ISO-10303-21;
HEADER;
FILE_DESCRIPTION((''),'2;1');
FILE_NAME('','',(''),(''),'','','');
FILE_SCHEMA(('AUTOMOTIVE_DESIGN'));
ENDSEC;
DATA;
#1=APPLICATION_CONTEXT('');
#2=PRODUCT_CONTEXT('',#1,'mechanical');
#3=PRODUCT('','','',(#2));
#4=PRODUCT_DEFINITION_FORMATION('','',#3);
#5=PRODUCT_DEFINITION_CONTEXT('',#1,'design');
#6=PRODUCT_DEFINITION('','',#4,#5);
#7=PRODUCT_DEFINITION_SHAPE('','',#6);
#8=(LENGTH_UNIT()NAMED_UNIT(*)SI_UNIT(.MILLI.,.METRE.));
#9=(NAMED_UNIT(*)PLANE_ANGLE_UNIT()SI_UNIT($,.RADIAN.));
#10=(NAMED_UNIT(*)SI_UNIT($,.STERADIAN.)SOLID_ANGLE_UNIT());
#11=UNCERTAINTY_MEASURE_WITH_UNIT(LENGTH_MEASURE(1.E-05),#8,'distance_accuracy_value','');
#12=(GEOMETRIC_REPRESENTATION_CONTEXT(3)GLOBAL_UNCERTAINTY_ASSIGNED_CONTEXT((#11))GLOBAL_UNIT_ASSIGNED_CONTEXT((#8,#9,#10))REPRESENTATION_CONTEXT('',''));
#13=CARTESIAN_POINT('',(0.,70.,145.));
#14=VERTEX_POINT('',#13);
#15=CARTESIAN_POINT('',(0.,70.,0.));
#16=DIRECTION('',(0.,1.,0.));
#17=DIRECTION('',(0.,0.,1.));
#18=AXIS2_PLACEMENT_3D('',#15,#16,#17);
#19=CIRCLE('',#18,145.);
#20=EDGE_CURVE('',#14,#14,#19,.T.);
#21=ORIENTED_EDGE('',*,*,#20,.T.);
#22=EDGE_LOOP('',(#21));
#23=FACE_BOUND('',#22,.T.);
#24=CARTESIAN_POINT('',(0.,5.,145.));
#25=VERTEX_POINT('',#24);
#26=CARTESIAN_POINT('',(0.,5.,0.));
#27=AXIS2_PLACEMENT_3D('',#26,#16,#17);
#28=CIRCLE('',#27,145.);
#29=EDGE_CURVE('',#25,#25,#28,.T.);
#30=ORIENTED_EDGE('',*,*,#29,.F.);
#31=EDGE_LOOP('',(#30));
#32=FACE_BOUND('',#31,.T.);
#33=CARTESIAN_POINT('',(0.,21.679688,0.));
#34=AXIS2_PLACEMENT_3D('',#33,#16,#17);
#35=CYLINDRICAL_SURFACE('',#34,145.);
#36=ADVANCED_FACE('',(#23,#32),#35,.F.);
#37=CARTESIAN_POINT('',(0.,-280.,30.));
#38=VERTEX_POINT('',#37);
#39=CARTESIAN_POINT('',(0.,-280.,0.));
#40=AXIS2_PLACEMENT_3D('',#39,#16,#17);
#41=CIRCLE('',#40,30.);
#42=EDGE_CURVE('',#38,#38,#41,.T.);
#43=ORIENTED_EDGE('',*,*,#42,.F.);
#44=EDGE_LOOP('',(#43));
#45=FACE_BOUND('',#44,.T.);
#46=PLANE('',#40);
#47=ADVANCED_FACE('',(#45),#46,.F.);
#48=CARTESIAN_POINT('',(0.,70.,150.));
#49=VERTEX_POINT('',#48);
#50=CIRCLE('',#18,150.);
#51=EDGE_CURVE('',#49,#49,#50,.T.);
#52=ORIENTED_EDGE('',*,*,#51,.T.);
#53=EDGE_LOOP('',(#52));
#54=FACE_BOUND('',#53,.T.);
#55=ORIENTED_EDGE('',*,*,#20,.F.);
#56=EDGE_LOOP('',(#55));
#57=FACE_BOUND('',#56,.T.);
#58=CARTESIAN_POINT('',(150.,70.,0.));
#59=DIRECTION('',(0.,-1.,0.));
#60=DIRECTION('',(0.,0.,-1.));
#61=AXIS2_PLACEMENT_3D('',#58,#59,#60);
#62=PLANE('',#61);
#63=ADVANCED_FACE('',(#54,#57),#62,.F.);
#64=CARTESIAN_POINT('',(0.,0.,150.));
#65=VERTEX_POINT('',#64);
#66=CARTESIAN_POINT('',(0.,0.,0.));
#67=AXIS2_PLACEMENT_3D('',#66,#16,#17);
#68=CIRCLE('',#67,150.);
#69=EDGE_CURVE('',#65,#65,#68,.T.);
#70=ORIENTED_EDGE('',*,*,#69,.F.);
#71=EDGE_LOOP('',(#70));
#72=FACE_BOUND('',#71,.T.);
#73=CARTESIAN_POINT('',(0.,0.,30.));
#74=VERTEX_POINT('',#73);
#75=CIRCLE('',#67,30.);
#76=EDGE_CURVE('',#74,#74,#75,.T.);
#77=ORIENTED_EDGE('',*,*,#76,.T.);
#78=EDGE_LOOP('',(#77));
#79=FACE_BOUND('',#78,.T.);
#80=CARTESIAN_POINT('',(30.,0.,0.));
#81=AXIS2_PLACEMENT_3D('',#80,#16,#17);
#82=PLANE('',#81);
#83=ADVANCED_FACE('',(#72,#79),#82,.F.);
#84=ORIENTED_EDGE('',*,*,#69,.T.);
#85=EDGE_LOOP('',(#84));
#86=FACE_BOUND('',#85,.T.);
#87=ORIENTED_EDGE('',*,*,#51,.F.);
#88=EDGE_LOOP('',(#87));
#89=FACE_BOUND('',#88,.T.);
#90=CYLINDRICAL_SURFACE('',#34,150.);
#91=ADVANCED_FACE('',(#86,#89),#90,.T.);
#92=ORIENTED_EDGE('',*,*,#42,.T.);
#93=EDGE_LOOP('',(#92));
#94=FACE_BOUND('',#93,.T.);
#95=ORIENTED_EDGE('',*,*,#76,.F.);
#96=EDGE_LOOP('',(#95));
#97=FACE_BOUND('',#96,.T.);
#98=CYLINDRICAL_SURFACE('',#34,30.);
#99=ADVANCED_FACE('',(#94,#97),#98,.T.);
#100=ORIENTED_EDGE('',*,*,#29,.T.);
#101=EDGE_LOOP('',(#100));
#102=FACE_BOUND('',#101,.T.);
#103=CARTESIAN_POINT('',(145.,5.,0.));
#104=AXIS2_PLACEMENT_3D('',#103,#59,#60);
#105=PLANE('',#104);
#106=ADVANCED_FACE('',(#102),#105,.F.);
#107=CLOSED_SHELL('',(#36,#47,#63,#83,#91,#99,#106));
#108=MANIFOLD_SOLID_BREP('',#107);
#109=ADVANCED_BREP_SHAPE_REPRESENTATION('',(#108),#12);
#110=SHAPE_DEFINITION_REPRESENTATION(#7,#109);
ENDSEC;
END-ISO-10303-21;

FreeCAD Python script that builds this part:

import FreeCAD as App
import Part
import Sketcher
Q = App.Units.Quantity


def add_polygon(sketch, points):
    """Adds a closed chain of lines whose ends are joined by coincident constraints."""
    first, n = sketch.GeometryCount, len(points)
    for a, b in zip(points, points[1:] + points[:1]):
        sketch.addGeometry(Part.LineSegment(App.Vector(*a, 0), App.Vector(*b, 0)), False)
    for i in range(n):
        sketch.addConstraint(Sketcher.Constraint("Coincident", first + i, 2, first + (i + 1) % n, 1))

doc = App.newDocument("Part")
body = doc.addObject("PartDesign::Body", "Body")

# Sketch on XY plane
sketch1 = doc.addObject("Sketcher::SketchObject", "Sketch")
body.addObject(sketch1)
sketch1.AttachmentSupport = (doc.XY_Plane, [""])
sketch1.MapMode = "FlatFace"
add_polygon(sketch1, [(30, -280), (30, 0), (150, 0), (150, 70), (145, 70), (145, 5), (0, 5), (0, -280)])  # lines 0-7
sketch1.addConstraint(Sketcher.Constraint("Vertical", 0))
sketch1.addConstraint(Sketcher.Constraint("Horizontal", 1))
sketch1.addConstraint(Sketcher.Constraint("Vertical", 2))
sketch1.addConstraint(Sketcher.Constraint("Horizontal", 3))
sketch1.addConstraint(Sketcher.Constraint("Vertical", 4))
sketch1.addConstraint(Sketcher.Constraint("Horizontal", 5))
sketch1.addConstraint(Sketcher.Constraint("Vertical", 6))
sketch1.addConstraint(Sketcher.Constraint("Horizontal", 7))
sketch1.addConstraint(Sketcher.Constraint("PointOnObject", 0, 2, -1))
sketch1.addConstraint(Sketcher.Constraint("PointOnObject", 5, 2, -2))
sketch1.addConstraint(Sketcher.Constraint("DistanceX", 1, 1, 1, 2, Q("120 mm")))
sketch1.addConstraint(Sketcher.Constraint("DistanceX", 3, 2, 3, 1, Q("5 mm")))
sketch1.addConstraint(Sketcher.Constraint("DistanceX", 5, 2, 5, 1, Q("145 mm")))
sketch1.addConstraint(Sketcher.Constraint("DistanceY", 0, 1, 0, 2, Q("280 mm")))
sketch1.addConstraint(Sketcher.Constraint("DistanceY", 2, 1, 2, 2, Q("70 mm")))
sketch1.addConstraint(Sketcher.Constraint("DistanceY", 4, 2, 4, 1, Q("65 mm")))
revolution = doc.addObject("PartDesign::Revolution", "Revolution")
body.addObject(revolution)
revolution.Profile = sketch1
revolution.ReferenceAxis = (sketch1, ["V_Axis"])
revolution.Angle = 360

doc.recompute()
